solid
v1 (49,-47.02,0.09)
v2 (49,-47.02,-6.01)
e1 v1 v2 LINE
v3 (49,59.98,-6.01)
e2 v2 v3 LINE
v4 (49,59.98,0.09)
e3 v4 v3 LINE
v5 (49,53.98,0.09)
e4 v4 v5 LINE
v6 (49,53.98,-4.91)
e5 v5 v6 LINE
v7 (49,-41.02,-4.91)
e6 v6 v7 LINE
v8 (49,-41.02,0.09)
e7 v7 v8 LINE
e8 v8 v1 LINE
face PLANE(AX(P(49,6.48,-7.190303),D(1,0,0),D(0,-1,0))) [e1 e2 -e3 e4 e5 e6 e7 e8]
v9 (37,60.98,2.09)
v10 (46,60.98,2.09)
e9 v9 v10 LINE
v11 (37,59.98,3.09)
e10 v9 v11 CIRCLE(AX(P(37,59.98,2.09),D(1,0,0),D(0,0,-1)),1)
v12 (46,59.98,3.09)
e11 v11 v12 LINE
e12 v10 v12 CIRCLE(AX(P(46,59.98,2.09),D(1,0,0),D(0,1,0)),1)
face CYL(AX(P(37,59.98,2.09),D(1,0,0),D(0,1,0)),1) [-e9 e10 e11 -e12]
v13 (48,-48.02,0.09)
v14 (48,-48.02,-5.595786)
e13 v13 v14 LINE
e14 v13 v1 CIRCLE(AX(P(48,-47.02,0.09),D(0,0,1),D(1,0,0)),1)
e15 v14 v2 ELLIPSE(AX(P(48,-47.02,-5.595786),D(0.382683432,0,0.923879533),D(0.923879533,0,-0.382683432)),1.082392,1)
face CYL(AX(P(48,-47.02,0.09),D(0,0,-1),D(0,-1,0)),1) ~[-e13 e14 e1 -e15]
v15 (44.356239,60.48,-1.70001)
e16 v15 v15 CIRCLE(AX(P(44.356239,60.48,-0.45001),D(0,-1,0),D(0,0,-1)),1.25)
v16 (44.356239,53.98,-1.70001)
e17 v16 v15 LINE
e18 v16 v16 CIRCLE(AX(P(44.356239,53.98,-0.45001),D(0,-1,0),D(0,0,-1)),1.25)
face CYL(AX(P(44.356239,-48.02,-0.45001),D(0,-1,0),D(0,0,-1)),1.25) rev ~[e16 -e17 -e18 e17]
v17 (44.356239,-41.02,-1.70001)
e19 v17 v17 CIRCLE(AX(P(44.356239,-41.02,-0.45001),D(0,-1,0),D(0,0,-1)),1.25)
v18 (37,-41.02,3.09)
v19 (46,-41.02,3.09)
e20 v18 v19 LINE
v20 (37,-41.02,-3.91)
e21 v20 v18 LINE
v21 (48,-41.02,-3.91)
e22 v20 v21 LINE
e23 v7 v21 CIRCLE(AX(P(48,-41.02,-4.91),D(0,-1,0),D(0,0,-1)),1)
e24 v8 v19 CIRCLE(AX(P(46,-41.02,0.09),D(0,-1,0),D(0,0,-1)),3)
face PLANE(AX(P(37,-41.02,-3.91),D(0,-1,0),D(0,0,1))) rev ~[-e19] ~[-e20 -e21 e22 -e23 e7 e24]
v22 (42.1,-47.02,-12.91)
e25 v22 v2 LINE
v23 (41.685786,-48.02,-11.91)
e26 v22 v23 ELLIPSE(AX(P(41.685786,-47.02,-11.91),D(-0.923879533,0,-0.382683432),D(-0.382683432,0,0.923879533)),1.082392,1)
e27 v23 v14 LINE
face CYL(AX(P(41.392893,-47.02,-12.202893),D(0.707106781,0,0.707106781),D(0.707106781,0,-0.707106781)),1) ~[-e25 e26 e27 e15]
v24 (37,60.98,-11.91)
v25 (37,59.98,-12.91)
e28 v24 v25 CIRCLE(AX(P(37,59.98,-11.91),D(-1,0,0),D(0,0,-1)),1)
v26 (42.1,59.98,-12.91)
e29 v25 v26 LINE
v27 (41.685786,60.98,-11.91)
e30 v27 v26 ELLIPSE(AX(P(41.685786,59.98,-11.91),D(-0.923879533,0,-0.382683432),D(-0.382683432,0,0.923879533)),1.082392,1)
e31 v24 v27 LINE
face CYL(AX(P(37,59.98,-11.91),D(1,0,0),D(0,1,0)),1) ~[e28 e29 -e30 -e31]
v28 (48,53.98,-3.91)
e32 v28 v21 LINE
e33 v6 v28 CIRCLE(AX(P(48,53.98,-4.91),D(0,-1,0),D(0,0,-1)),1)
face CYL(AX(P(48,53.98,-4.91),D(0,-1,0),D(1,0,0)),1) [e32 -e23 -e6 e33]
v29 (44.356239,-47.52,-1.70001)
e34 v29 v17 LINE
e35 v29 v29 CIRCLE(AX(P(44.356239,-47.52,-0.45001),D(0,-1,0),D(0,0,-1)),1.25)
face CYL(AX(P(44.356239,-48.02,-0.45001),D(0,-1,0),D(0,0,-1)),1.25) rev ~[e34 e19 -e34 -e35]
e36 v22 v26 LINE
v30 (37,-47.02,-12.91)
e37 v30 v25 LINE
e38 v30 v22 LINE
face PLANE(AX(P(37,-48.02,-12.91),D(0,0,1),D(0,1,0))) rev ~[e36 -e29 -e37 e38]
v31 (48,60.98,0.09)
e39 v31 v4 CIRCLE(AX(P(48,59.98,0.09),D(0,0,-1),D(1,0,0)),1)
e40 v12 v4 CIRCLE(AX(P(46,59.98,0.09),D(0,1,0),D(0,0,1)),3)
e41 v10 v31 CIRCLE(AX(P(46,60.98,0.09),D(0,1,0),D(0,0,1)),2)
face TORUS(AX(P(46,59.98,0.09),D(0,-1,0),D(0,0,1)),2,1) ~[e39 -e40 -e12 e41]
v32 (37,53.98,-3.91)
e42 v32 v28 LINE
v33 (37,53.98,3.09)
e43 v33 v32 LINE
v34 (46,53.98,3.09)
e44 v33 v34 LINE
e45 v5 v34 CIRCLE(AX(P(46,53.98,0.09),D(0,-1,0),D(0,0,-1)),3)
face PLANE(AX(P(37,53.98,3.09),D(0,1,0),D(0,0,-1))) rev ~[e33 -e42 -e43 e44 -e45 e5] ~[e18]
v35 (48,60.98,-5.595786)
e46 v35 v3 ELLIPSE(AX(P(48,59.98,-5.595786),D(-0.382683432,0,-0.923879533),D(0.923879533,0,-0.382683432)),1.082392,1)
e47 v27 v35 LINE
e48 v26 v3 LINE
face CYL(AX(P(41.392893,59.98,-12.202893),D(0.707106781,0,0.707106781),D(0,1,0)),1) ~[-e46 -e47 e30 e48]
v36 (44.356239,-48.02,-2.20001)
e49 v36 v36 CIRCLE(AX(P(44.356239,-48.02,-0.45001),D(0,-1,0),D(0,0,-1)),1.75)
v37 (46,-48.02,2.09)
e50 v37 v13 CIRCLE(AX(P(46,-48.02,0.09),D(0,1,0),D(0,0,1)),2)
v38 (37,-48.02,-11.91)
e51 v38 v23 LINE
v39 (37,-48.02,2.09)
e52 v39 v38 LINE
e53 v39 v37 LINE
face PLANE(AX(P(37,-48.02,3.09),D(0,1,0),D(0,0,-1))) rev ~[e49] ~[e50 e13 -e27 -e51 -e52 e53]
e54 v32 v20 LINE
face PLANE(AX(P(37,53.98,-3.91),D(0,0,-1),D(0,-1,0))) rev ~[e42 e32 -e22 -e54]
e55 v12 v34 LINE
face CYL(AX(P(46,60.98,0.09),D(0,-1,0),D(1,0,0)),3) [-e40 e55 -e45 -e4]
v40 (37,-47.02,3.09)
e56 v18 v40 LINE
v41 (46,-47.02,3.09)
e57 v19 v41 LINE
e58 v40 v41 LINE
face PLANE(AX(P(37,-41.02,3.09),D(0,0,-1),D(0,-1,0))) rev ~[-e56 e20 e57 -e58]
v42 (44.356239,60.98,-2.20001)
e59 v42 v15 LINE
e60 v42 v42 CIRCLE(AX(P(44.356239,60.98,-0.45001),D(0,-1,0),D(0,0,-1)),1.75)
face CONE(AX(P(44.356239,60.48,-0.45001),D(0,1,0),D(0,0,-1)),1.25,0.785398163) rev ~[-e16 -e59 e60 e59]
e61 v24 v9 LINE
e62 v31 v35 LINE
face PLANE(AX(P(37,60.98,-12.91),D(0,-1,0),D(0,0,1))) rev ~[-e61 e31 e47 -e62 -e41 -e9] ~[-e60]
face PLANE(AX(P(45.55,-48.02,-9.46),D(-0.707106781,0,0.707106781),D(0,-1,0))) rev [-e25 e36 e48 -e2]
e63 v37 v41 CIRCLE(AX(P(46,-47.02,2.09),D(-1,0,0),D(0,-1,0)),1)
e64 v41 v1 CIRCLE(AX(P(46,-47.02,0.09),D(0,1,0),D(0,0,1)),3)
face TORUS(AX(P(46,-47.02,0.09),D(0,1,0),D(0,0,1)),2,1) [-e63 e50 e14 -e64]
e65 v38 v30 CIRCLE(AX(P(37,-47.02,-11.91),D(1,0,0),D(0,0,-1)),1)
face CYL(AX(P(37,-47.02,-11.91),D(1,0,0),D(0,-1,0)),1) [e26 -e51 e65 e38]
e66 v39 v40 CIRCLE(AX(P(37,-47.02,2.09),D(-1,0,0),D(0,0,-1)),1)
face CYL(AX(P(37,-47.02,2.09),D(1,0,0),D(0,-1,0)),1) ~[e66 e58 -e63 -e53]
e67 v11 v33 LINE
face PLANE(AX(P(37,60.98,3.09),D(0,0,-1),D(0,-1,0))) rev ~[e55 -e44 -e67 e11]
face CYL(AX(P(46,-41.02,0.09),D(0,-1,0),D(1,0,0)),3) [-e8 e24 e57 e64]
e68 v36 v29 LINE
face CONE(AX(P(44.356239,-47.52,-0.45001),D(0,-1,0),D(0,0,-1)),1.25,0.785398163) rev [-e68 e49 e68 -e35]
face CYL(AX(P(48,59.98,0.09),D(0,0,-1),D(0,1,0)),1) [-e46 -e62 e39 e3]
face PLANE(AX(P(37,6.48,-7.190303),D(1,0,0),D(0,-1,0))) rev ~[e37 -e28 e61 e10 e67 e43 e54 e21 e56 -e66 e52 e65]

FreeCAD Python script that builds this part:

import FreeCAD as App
import Part
import Sketcher
from FreeCAD import Vector


def edges_at(feature, points):
    """Names of the edges that pass closest to the given points."""
    edges = feature.Shape.Edges
    near = lambda p: min(range(len(edges)), key=lambda i: edges[i].distToShape(Part.Vertex(*p))[0])
    return sorted({f"Edge{near(p) + 1}" for p in points})


def add_polygon(sketch, points):
    """Adds a closed chain of lines whose ends are joined by coincident constraints."""
    first, n = sketch.GeometryCount, len(points)
    for a, b in zip(points, points[1:] + points[:1]):
        sketch.addGeometry(Part.LineSegment(App.Vector(*a, 0), App.Vector(*b, 0)), False)
    for i in range(n):
        sketch.addConstraint(Sketcher.Constraint("Coincident", first + i, 2, first + (i + 1) % n, 1))

doc = App.newDocument("Part")
body = doc.addObject("PartDesign::Body", "Body")

# Sketch on YZ plane
sketch1 = body.newObject("Sketcher::SketchObject", "Sketch")
sketch1.AttachmentSupport = (doc.getObject("YZ_Plane"), [""])
sketch1.MapMode = "FlatFace"
sketch1.AttachmentOffset = App.Placement(Vector(0, 0, 37), App.Rotation())
add_polygon(sketch1, [(-48, 6), (-41, 6), (-41, 13), (54, 13), (54, 6), (61, 6), (61, 22), (-48, 22)])  # lines 0-7
sketch1.addConstraint(Sketcher.Constraint("Horizontal", 0))
sketch1.addConstraint(Sketcher.Constraint("Vertical", 1))
sketch1.addConstraint(Sketcher.Constraint("Horizontal", 2))
sketch1.addConstraint(Sketcher.Constraint("Vertical", 3))
sketch1.addConstraint(Sketcher.Constraint("Horizontal", 4))
sketch1.addConstraint(Sketcher.Constraint("Vertical", 5))
sketch1.addConstraint(Sketcher.Constraint("Horizontal", 6))
sketch1.addConstraint(Sketcher.Constraint("Vertical", 7))
sketch1.addConstraint(Sketcher.Constraint("Horizontal", 0, 2, 3, 2))
sketch1.addConstraint(Sketcher.Constraint("Equal", 0, 4))
sketch1.addConstraint(Sketcher.Constraint("Equal", 4, 1))
sketch1.addConstraint(Sketcher.Constraint("DistanceX", 0, 1, 0, 2, 7.0))
sketch1.addConstraint(Sketcher.Constraint("DistanceX", 2, 1, 2, 2, 95.0))
sketch1.addConstraint(Sketcher.Constraint("DistanceY", 5, 1, 5, 2, 16.0))
sketch1.addConstraint(Sketcher.Constraint("DistanceX", 0, 2, -1, 1, 41.0))
sketch1.addConstraint(Sketcher.Constraint("DistanceY", -1, 1, 0, 2, 6.0))
pad1 = body.newObject("PartDesign::Pad", "Pad")
pad1.Profile = sketch1
pad1.Length = 12
doc.recompute()

chamfer = body.newObject("PartDesign::Chamfer", "Chamfer")
chamfer.Base = (pad1, edges_at(pad1, [(49, 6.5, 22)]))
chamfer.Size = 6.9
doc.recompute()

fillet = body.newObject("PartDesign::Fillet", "Fillet")
fillet.Base = (chamfer, edges_at(chamfer, [(49, 6.5, 13)]))
fillet.Radius = 1
doc.recompute()

fillet2 = body.newObject("PartDesign::Fillet", "Fillet001")
fillet2.Base = (fillet, edges_at(fillet, [(49, 57.5, 6), (49, -44.5, 6)]))
fillet2.Radius = 3
doc.recompute()

fillet3 = body.newObject("PartDesign::Fillet", "Fillet002")
fillet3.Base = (fillet2, edges_at(fillet2, [
    (41.5, 61, 6),
    (48.121, 61, 6.879),
    (49, 61, 12.05),
    (45.55, 61, 18.55),
    (39.55, 61, 22),
]))
fillet3.Radius = 1

# Sketch on XZ plane
sketch2 = body.newObject("Sketcher::SketchObject", "Sketch001")
sketch2.AttachmentSupport = (doc.getObject("XZ_Plane"), [""])
sketch2.MapMode = "FlatFace"
sketch2.AttachmentOffset = App.Placement(Vector(0, 0, -61), App.Rotation())
sketch2.addGeometry(Part.Circle(Vector(44.4, 9.5, 0), Vector(0, 0, 1), 1.2), False)
sketch2.addConstraint(Sketcher.Constraint("Diameter", 0, 2.5))
sketch2.addConstraint(Sketcher.Constraint("DistanceX", -1, 1, 0, 3, 44.356239))
sketch2.addConstraint(Sketcher.Constraint("DistanceY", -1, 1, 0, 3, 9.54001))
pocket1 = body.newObject("PartDesign::Pocket", "Pocket")
pocket1.Profile = sketch2
pocket1.Type = "ThroughAll"
pocket1.Reversed = True
doc.recompute()

chamfer2 = body.newObject("PartDesign::Chamfer", "Chamfer001")
chamfer2.Base = (pocket1, edges_at(pocket1, [(44.356, 61, 8.29), (44.356, -48, 8.29)]))
chamfer2.Size = 0.5
doc.recompute()

fillet4 = body.newObject("PartDesign::Fillet", "Fillet003")
fillet4.Base = (chamfer2, edges_at(chamfer2, [
    (41.5, -48, 6),
    (48.121, -48, 6.879),
    (49, -48, 12.05),
    (45.55, -48, 18.55),
    (39.55, -48, 22),
]))
fillet4.Radius = 1
body2 = doc.addObject("PartDesign::Body", "Body001")
doc.recompute()

body.Placement = App.Placement(Vector(0, 12.98, 9.09), App.Rotation(Vector(1, 0, 0), 180))
boolean = body2.newObject("PartDesign::Boolean", "Boolean")
boolean.Type = "Fuse"
boolean.addObjects([body])

doc.recompute()
